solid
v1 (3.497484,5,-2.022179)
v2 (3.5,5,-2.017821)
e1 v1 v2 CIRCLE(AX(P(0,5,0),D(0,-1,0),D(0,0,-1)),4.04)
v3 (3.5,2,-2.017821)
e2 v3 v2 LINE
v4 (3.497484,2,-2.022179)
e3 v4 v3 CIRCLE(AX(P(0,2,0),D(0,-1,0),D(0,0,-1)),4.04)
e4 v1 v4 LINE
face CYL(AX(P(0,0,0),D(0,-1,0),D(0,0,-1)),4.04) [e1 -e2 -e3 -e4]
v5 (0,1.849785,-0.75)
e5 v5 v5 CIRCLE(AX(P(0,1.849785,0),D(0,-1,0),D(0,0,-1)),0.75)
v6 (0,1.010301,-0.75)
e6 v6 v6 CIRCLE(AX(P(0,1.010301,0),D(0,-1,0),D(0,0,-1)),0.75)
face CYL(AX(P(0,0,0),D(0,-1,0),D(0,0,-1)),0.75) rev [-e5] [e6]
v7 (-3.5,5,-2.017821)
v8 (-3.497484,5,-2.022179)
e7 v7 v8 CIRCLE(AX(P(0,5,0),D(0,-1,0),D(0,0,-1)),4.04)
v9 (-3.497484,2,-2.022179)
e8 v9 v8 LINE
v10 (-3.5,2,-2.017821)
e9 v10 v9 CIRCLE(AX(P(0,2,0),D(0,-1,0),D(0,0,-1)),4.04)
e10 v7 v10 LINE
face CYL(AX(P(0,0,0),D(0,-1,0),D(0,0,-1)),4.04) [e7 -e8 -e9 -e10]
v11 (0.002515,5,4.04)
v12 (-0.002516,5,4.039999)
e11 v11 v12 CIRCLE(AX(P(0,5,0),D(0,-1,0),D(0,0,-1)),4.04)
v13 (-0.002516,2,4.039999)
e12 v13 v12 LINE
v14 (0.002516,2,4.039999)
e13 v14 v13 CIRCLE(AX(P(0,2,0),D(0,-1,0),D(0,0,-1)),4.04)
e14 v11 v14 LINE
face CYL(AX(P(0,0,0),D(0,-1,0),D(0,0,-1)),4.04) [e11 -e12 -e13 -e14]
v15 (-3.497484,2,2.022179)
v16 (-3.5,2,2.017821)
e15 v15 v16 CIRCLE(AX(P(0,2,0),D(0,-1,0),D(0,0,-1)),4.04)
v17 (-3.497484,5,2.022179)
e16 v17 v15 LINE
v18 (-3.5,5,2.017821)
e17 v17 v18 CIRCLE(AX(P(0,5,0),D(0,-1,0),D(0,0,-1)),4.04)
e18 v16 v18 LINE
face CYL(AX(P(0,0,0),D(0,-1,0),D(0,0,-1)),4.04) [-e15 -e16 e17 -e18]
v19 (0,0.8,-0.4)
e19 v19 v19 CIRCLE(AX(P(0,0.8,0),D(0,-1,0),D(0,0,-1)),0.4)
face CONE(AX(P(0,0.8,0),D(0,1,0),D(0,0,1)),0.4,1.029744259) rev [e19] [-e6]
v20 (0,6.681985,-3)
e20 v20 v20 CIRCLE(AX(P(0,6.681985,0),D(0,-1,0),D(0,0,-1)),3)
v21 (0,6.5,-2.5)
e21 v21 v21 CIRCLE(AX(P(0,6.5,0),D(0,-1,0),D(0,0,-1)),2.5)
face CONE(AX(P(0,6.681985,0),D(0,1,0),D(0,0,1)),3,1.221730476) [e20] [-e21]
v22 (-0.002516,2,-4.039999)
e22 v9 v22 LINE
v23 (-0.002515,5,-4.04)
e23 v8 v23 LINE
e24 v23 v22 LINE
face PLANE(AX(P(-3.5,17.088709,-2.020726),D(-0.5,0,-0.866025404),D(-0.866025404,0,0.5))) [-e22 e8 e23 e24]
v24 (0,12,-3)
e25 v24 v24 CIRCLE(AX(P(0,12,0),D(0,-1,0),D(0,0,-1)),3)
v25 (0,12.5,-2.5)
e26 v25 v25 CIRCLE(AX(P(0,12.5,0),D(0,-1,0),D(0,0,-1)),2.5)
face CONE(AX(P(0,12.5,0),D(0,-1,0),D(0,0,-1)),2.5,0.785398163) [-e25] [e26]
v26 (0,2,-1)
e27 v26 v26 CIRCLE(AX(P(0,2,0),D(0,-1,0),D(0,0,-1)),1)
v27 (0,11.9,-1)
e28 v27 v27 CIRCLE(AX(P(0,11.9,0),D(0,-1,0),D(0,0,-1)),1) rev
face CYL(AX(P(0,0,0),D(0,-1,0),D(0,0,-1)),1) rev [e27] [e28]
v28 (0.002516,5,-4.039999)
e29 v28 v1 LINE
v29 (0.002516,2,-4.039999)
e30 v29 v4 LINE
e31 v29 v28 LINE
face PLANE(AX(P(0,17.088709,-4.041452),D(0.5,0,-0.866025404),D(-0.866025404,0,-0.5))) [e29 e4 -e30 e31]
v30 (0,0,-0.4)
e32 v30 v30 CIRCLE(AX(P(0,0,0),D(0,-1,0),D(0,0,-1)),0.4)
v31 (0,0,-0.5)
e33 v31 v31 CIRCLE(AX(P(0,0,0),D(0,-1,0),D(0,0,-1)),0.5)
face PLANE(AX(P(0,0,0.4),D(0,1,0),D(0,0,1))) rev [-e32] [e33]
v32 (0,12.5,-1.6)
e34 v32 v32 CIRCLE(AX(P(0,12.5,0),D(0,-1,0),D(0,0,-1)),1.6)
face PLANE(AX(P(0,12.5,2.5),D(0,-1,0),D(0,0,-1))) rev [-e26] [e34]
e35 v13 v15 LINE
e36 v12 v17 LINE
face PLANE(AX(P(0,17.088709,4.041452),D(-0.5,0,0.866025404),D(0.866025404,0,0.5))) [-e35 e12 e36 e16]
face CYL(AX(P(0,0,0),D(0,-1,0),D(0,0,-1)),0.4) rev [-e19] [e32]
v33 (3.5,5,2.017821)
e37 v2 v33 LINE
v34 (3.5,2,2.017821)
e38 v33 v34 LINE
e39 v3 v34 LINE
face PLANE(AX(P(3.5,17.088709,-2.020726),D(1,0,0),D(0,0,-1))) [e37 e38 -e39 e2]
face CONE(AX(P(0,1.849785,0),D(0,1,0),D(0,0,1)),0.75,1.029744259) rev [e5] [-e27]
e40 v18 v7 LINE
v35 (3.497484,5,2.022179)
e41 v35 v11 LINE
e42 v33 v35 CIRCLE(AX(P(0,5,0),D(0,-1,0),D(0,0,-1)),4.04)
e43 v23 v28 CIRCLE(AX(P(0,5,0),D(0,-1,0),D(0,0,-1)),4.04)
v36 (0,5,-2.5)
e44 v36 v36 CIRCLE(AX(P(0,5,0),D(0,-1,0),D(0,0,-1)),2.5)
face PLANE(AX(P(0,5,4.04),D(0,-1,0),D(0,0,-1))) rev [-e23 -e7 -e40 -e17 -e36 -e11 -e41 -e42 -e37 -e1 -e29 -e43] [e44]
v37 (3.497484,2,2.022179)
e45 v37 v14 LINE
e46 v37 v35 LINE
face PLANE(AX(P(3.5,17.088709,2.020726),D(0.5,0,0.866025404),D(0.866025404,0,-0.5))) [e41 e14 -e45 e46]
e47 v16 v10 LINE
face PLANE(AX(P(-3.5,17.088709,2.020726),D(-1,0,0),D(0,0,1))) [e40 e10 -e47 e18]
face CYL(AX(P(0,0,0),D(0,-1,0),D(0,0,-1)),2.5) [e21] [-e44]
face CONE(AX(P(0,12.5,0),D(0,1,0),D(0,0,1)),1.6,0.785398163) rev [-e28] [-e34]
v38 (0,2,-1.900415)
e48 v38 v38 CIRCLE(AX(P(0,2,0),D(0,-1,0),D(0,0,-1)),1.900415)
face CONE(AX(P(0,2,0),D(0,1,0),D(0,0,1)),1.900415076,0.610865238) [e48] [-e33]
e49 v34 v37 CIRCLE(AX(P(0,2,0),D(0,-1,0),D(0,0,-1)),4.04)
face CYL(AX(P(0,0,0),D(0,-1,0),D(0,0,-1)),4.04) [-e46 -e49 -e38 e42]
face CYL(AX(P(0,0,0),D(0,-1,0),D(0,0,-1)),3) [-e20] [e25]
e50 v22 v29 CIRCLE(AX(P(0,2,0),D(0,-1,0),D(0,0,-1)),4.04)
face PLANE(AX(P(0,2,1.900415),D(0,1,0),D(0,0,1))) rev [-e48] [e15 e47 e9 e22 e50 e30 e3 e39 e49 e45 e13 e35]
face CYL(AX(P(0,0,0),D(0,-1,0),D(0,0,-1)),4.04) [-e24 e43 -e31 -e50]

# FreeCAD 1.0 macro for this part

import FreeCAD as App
import Part
import Sketcher

V = App.Vector
Q = App.Units.Quantity


def edges_at(feature, points):
    """Names of the edges that pass closest to the given points."""
    edges = feature.Shape.Edges
    near = lambda p: min(range(len(edges)), key=lambda i: edges[i].distToShape(Part.Vertex(*p))[0])
    return sorted({f"Edge{near(p) + 1}" for p in points})


def add_polygon(sketch, points):
    """Adds a closed chain of lines whose ends are joined by coincident constraints."""
    first, n = sketch.GeometryCount, len(points)
    for a, b in zip(points, points[1:] + points[:1]):
        sketch.addGeometry(Part.LineSegment(App.Vector(*a, 0), App.Vector(*b, 0)), False)
    for i in range(n):
        sketch.addConstraint(Sketcher.Constraint("Coincident", first + i, 2, first + (i + 1) % n, 1))

doc = App.newDocument("Part")
body = doc.addObject("PartDesign::Body", "Body")

# Sketch on YZ plane
sketch1 = doc.addObject("Sketcher::SketchObject", "Sketch")
body.addObject(sketch1)
sketch1.AttachmentSupport = (doc.YZ_Plane, [""])
sketch1.MapMode = "FlatFace"
add_polygon(sketch1, [(0, 0.4), (0.8, 0.4), (1.01, 0.75), (1.85, 0.75), (2, 1), (12.5, 1), (12.5, 2.5), (12, 3), (6.68, 3), (6.5, 2.5), (5, 2.5), (5, 4.04), (2, 4.04), (2, 1.9), (0, 0.5)])  # lines 0-14
sketch1.addConstraint([
    Sketcher.Constraint("Horizontal", 0),
    Sketcher.Constraint("Horizontal", 2),
    Sketcher.Constraint("Horizontal", 4),
    Sketcher.Constraint("Vertical", 5),
    Sketcher.Constraint("Horizontal", 7),
    Sketcher.Constraint("Horizontal", 9),
    Sketcher.Constraint("Vertical", 10),
    Sketcher.Constraint("Horizontal", 11),
    Sketcher.Constraint("Vertical", 12),
    Sketcher.Constraint("Vertical", 14),
    Sketcher.Constraint("PointOnObject", 13, 2, -2),
    Sketcher.Constraint("Parallel", 1, 3),
    Sketcher.Constraint("Horizontal", 5, 2, 8, 2),
    Sketcher.Constraint("Vertical", 3, 2, 11, 2),
    Sketcher.Constraint("Equal", 9, 5),
    Sketcher.Constraint("DistanceX", 11, 2, 11, 1, Q("3 mm")),
    Sketcher.Constraint("Angle", 1, Q("59 deg")),
    Sketcher.Constraint("Angle", 6, Q("135 deg")),
    Sketcher.Constraint("Angle", 8, Q("-110 deg")),
    Sketcher.Constraint("Angle", 13, Q("-145 deg")),
    Sketcher.Constraint("DistanceX", 0, 1, 0, 2, Q("0.8 mm")),
    Sketcher.Constraint("DistanceX", 4, 1, 4, 2, Q("10.5 mm")),
    Sketcher.Constraint("DistanceX", 9, 2, 9, 1, Q("1.5 mm")),
    Sketcher.Constraint("DistanceY", 14, 2, 14, 1, Q("0.1 mm")),
    Sketcher.Constraint("DistanceX", -1, 1, 3, 2, Q("2 mm")),
    Sketcher.Constraint("DistanceY", -1, 1, 3, 2, Q("1 mm")),
    Sketcher.Constraint("DistanceX", -1, 1, 6, 2, Q("12 mm")),
    Sketcher.Constraint("DistanceY", 10, 1, 10, 2, Q("1.54 mm")),
    Sketcher.Constraint("DistanceY", -1, 1, 0, 2, Q("0.4 mm")),
    Sketcher.Constraint("DistanceY", -1, 1, 1, 2, Q("0.75 mm")),
])
revolution = doc.addObject("PartDesign::Revolution", "Revolution")
body.addObject(revolution)
revolution.Profile = sketch1
revolution.ReferenceAxis = (sketch1, ["H_Axis"])
revolution.Angle = 360

# Sketch on XZ plane
sketch2 = doc.addObject("Sketcher::SketchObject", "Sketch001")
body.addObject(sketch2)
sketch2.AttachmentSupport = (doc.XZ_Plane, [""])
sketch2.MapMode = "FlatFace"
sketch2.AttachmentOffset = App.Placement(V(0, 0, -2), App.Rotation())
add_polygon(sketch2, [(-6.7, 6.7), (-6.7, -6.7), (6.7, -6.7), (6.7, 6.7)])  # lines 0-3
add_polygon(sketch2, [(-3.5, 2), (0, 4), (3.5, 2), (3.5, -2), (0, -4), (-3.5, -2)])  # lines 4-9
sketch2.addConstraint([
    Sketcher.Constraint("Vertical", 0),
    Sketcher.Constraint("Horizontal", 1),
    Sketcher.Constraint("Vertical", 2),
    Sketcher.Constraint("Horizontal", 3),
    Sketcher.Constraint("Vertical", 6),
    Sketcher.Constraint("Vertical", 9),
    Sketcher.Constraint("Symmetric", 0, 2, 2, 2, -1, 1),
    Sketcher.Constraint("Symmetric", 4, 2, 7, 2, -1, 1),
    Sketcher.Constraint("Symmetric", 5, 2, 8, 2, -1, 1),
    Sketcher.Constraint("PointOnObject", 4, 2, -2),
    Sketcher.Constraint("Parallel", 4, 7),
    Sketcher.Constraint("Horizontal", 6, 2, 8, 2),
    Sketcher.Constraint("Equal", 3, 0),
    Sketcher.Constraint("Angle", 4, Q("30 deg")),
    Sketcher.Constraint("DistanceX", 8, 2, 6, 2, Q("7 mm")),
    Sketcher.Constraint("DistanceX", 1, 1, 1, 2, Q("13.468 mm")),
    Sketcher.Constraint("DistanceY", 6, 2, 6, 1, Q("4.041452 mm")),
])
pocket1 = doc.addObject("PartDesign::Pocket", "Pocket")
body.addObject(pocket1)
pocket1.Profile = sketch2
pocket1.Length = 3
doc.recompute()

chamfer = doc.addObject("PartDesign::Chamfer", "Chamfer")
body.addObject(chamfer)
chamfer.Base = (pocket1, edges_at(pocket1, [(0, 12.5, -1)]))
chamfer.Size = 0.6

doc.recompute()
